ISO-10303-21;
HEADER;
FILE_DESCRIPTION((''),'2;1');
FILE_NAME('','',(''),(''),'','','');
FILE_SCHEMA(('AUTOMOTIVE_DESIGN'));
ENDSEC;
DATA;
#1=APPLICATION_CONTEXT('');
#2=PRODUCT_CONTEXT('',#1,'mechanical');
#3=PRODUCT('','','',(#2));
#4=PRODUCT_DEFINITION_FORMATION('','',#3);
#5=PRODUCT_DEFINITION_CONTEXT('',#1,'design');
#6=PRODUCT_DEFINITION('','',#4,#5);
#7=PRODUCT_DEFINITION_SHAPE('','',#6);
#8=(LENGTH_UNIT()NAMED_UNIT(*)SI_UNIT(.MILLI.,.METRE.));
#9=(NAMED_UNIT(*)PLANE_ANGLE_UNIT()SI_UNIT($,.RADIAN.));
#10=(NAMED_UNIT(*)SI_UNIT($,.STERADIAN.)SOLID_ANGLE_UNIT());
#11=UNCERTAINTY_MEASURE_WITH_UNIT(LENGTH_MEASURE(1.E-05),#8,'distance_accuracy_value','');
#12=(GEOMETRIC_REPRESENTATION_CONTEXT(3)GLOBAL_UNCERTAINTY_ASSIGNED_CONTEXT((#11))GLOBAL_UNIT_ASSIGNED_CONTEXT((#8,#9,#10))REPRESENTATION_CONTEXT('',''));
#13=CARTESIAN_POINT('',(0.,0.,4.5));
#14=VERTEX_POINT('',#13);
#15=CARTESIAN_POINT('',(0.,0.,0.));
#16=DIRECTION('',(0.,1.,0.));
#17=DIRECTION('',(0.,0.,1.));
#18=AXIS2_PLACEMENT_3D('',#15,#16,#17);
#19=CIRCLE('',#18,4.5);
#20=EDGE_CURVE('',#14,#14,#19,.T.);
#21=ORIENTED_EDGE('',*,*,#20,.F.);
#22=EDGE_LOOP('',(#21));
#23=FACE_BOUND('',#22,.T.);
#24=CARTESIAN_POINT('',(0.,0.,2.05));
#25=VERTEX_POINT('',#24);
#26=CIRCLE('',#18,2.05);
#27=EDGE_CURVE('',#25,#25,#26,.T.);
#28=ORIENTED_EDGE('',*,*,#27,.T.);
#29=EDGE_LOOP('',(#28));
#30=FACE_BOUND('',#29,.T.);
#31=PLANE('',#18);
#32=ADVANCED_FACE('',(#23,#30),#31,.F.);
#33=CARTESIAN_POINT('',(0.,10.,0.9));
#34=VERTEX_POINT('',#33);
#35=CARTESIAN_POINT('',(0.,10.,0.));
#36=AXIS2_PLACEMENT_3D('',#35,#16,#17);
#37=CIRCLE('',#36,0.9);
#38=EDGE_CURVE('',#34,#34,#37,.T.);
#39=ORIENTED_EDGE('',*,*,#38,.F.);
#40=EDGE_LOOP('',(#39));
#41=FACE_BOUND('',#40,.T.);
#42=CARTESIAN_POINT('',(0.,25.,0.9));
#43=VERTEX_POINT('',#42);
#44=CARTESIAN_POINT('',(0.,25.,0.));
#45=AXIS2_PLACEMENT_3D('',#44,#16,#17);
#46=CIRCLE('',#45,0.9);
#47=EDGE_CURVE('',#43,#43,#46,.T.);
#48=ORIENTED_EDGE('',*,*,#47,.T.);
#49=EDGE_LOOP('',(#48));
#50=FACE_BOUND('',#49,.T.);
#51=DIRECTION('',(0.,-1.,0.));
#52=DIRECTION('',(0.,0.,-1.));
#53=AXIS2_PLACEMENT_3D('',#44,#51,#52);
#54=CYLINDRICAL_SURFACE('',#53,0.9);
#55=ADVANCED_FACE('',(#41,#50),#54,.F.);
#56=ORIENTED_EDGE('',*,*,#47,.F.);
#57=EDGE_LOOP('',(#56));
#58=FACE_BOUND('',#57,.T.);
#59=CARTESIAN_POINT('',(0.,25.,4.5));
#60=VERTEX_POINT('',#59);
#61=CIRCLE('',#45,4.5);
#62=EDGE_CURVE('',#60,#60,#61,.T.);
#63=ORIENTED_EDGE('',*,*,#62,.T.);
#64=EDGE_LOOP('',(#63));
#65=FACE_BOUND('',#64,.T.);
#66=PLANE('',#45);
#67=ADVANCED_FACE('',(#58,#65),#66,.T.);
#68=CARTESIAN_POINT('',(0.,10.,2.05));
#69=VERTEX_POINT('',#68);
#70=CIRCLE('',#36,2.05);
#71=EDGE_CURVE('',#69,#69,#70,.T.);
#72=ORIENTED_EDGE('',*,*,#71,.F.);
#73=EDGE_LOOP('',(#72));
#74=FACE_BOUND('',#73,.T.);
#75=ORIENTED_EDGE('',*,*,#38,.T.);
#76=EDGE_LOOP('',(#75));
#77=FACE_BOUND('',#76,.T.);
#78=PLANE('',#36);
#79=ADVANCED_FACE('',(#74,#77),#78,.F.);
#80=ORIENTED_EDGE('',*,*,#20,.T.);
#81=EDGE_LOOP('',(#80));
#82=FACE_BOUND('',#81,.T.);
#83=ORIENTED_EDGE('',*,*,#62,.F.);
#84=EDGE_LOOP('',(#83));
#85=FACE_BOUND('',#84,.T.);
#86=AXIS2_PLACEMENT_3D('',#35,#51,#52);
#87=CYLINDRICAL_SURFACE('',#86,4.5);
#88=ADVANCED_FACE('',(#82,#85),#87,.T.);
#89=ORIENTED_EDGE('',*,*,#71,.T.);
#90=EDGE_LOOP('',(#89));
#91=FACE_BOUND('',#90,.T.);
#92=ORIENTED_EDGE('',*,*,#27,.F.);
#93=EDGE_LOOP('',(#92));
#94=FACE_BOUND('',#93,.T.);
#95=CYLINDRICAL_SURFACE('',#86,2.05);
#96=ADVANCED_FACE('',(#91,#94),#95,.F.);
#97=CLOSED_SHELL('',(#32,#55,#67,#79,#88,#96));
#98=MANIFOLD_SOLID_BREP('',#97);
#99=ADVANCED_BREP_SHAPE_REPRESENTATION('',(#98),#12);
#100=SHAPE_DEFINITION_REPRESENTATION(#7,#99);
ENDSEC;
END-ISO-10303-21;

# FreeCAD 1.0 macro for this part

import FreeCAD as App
import Part
import Sketcher

V = App.Vector
Q = App.Units.Quantity

doc = App.newDocument("Part")
body = doc.addObject("PartDesign::Body", "Body")

sketch1 = body.newObject("Sketcher::SketchObject", "Sketch")
sketch1.AttachmentSupport = (doc.getObject("XZ_Plane"), [""])
sketch1.MapMode = "FlatFace"
sketch1.addGeometry([
    Part.Circle(V(0, 0, 0), V(0, 0, 1), 4.5),
    Part.Circle(V(0, 0, 0), V(0, 0, 1), 2),
], False)
sketch1.addConstraint([
    Sketcher.Constraint("Coincident", 0, 3, -1, 1),
    Sketcher.Constraint("Coincident", 1, 3, -1, 1),
    Sketcher.Constraint("Diameter", 0, Q("9 mm")),
    Sketcher.Constraint("Diameter", 1, Q("4.1 mm")),
])
pad1 = body.newObject("PartDesign::Pad", "Pad")
pad1.Profile = sketch1
pad1.Length = 10
pad1.Reversed = True

sketch2 = body.newObject("Sketcher::SketchObject", "Sketch001")
sketch2.AttachmentSupport = (doc.getObject("XZ_Plane"), [""])
sketch2.MapMode = "FlatFace"
sketch2.AttachmentOffset = App.Placement(V(0, 0, -10), App.Rotation())
sketch2.addGeometry([
    Part.Circle(V(0, 0, 0), V(0, 0, 1), 4.5),
    Part.Circle(V(0, 0, 0), V(0, 0, 1), 0.9),
], False)
sketch2.addConstraint([
    Sketcher.Constraint("Coincident", 0, 3, -1, 1),
    Sketcher.Constraint("Coincident", 1, 3, -1, 1),
    Sketcher.Constraint("Diameter", 0, Q("9 mm")),
    Sketcher.Constraint("Diameter", 1, Q("1.8 mm")),
])
pad2 = body.newObject("PartDesign::Pad", "Pad001")
pad2.Profile = sketch2
pad2.Length = 15
pad2.Reversed = True

doc.recompute()
